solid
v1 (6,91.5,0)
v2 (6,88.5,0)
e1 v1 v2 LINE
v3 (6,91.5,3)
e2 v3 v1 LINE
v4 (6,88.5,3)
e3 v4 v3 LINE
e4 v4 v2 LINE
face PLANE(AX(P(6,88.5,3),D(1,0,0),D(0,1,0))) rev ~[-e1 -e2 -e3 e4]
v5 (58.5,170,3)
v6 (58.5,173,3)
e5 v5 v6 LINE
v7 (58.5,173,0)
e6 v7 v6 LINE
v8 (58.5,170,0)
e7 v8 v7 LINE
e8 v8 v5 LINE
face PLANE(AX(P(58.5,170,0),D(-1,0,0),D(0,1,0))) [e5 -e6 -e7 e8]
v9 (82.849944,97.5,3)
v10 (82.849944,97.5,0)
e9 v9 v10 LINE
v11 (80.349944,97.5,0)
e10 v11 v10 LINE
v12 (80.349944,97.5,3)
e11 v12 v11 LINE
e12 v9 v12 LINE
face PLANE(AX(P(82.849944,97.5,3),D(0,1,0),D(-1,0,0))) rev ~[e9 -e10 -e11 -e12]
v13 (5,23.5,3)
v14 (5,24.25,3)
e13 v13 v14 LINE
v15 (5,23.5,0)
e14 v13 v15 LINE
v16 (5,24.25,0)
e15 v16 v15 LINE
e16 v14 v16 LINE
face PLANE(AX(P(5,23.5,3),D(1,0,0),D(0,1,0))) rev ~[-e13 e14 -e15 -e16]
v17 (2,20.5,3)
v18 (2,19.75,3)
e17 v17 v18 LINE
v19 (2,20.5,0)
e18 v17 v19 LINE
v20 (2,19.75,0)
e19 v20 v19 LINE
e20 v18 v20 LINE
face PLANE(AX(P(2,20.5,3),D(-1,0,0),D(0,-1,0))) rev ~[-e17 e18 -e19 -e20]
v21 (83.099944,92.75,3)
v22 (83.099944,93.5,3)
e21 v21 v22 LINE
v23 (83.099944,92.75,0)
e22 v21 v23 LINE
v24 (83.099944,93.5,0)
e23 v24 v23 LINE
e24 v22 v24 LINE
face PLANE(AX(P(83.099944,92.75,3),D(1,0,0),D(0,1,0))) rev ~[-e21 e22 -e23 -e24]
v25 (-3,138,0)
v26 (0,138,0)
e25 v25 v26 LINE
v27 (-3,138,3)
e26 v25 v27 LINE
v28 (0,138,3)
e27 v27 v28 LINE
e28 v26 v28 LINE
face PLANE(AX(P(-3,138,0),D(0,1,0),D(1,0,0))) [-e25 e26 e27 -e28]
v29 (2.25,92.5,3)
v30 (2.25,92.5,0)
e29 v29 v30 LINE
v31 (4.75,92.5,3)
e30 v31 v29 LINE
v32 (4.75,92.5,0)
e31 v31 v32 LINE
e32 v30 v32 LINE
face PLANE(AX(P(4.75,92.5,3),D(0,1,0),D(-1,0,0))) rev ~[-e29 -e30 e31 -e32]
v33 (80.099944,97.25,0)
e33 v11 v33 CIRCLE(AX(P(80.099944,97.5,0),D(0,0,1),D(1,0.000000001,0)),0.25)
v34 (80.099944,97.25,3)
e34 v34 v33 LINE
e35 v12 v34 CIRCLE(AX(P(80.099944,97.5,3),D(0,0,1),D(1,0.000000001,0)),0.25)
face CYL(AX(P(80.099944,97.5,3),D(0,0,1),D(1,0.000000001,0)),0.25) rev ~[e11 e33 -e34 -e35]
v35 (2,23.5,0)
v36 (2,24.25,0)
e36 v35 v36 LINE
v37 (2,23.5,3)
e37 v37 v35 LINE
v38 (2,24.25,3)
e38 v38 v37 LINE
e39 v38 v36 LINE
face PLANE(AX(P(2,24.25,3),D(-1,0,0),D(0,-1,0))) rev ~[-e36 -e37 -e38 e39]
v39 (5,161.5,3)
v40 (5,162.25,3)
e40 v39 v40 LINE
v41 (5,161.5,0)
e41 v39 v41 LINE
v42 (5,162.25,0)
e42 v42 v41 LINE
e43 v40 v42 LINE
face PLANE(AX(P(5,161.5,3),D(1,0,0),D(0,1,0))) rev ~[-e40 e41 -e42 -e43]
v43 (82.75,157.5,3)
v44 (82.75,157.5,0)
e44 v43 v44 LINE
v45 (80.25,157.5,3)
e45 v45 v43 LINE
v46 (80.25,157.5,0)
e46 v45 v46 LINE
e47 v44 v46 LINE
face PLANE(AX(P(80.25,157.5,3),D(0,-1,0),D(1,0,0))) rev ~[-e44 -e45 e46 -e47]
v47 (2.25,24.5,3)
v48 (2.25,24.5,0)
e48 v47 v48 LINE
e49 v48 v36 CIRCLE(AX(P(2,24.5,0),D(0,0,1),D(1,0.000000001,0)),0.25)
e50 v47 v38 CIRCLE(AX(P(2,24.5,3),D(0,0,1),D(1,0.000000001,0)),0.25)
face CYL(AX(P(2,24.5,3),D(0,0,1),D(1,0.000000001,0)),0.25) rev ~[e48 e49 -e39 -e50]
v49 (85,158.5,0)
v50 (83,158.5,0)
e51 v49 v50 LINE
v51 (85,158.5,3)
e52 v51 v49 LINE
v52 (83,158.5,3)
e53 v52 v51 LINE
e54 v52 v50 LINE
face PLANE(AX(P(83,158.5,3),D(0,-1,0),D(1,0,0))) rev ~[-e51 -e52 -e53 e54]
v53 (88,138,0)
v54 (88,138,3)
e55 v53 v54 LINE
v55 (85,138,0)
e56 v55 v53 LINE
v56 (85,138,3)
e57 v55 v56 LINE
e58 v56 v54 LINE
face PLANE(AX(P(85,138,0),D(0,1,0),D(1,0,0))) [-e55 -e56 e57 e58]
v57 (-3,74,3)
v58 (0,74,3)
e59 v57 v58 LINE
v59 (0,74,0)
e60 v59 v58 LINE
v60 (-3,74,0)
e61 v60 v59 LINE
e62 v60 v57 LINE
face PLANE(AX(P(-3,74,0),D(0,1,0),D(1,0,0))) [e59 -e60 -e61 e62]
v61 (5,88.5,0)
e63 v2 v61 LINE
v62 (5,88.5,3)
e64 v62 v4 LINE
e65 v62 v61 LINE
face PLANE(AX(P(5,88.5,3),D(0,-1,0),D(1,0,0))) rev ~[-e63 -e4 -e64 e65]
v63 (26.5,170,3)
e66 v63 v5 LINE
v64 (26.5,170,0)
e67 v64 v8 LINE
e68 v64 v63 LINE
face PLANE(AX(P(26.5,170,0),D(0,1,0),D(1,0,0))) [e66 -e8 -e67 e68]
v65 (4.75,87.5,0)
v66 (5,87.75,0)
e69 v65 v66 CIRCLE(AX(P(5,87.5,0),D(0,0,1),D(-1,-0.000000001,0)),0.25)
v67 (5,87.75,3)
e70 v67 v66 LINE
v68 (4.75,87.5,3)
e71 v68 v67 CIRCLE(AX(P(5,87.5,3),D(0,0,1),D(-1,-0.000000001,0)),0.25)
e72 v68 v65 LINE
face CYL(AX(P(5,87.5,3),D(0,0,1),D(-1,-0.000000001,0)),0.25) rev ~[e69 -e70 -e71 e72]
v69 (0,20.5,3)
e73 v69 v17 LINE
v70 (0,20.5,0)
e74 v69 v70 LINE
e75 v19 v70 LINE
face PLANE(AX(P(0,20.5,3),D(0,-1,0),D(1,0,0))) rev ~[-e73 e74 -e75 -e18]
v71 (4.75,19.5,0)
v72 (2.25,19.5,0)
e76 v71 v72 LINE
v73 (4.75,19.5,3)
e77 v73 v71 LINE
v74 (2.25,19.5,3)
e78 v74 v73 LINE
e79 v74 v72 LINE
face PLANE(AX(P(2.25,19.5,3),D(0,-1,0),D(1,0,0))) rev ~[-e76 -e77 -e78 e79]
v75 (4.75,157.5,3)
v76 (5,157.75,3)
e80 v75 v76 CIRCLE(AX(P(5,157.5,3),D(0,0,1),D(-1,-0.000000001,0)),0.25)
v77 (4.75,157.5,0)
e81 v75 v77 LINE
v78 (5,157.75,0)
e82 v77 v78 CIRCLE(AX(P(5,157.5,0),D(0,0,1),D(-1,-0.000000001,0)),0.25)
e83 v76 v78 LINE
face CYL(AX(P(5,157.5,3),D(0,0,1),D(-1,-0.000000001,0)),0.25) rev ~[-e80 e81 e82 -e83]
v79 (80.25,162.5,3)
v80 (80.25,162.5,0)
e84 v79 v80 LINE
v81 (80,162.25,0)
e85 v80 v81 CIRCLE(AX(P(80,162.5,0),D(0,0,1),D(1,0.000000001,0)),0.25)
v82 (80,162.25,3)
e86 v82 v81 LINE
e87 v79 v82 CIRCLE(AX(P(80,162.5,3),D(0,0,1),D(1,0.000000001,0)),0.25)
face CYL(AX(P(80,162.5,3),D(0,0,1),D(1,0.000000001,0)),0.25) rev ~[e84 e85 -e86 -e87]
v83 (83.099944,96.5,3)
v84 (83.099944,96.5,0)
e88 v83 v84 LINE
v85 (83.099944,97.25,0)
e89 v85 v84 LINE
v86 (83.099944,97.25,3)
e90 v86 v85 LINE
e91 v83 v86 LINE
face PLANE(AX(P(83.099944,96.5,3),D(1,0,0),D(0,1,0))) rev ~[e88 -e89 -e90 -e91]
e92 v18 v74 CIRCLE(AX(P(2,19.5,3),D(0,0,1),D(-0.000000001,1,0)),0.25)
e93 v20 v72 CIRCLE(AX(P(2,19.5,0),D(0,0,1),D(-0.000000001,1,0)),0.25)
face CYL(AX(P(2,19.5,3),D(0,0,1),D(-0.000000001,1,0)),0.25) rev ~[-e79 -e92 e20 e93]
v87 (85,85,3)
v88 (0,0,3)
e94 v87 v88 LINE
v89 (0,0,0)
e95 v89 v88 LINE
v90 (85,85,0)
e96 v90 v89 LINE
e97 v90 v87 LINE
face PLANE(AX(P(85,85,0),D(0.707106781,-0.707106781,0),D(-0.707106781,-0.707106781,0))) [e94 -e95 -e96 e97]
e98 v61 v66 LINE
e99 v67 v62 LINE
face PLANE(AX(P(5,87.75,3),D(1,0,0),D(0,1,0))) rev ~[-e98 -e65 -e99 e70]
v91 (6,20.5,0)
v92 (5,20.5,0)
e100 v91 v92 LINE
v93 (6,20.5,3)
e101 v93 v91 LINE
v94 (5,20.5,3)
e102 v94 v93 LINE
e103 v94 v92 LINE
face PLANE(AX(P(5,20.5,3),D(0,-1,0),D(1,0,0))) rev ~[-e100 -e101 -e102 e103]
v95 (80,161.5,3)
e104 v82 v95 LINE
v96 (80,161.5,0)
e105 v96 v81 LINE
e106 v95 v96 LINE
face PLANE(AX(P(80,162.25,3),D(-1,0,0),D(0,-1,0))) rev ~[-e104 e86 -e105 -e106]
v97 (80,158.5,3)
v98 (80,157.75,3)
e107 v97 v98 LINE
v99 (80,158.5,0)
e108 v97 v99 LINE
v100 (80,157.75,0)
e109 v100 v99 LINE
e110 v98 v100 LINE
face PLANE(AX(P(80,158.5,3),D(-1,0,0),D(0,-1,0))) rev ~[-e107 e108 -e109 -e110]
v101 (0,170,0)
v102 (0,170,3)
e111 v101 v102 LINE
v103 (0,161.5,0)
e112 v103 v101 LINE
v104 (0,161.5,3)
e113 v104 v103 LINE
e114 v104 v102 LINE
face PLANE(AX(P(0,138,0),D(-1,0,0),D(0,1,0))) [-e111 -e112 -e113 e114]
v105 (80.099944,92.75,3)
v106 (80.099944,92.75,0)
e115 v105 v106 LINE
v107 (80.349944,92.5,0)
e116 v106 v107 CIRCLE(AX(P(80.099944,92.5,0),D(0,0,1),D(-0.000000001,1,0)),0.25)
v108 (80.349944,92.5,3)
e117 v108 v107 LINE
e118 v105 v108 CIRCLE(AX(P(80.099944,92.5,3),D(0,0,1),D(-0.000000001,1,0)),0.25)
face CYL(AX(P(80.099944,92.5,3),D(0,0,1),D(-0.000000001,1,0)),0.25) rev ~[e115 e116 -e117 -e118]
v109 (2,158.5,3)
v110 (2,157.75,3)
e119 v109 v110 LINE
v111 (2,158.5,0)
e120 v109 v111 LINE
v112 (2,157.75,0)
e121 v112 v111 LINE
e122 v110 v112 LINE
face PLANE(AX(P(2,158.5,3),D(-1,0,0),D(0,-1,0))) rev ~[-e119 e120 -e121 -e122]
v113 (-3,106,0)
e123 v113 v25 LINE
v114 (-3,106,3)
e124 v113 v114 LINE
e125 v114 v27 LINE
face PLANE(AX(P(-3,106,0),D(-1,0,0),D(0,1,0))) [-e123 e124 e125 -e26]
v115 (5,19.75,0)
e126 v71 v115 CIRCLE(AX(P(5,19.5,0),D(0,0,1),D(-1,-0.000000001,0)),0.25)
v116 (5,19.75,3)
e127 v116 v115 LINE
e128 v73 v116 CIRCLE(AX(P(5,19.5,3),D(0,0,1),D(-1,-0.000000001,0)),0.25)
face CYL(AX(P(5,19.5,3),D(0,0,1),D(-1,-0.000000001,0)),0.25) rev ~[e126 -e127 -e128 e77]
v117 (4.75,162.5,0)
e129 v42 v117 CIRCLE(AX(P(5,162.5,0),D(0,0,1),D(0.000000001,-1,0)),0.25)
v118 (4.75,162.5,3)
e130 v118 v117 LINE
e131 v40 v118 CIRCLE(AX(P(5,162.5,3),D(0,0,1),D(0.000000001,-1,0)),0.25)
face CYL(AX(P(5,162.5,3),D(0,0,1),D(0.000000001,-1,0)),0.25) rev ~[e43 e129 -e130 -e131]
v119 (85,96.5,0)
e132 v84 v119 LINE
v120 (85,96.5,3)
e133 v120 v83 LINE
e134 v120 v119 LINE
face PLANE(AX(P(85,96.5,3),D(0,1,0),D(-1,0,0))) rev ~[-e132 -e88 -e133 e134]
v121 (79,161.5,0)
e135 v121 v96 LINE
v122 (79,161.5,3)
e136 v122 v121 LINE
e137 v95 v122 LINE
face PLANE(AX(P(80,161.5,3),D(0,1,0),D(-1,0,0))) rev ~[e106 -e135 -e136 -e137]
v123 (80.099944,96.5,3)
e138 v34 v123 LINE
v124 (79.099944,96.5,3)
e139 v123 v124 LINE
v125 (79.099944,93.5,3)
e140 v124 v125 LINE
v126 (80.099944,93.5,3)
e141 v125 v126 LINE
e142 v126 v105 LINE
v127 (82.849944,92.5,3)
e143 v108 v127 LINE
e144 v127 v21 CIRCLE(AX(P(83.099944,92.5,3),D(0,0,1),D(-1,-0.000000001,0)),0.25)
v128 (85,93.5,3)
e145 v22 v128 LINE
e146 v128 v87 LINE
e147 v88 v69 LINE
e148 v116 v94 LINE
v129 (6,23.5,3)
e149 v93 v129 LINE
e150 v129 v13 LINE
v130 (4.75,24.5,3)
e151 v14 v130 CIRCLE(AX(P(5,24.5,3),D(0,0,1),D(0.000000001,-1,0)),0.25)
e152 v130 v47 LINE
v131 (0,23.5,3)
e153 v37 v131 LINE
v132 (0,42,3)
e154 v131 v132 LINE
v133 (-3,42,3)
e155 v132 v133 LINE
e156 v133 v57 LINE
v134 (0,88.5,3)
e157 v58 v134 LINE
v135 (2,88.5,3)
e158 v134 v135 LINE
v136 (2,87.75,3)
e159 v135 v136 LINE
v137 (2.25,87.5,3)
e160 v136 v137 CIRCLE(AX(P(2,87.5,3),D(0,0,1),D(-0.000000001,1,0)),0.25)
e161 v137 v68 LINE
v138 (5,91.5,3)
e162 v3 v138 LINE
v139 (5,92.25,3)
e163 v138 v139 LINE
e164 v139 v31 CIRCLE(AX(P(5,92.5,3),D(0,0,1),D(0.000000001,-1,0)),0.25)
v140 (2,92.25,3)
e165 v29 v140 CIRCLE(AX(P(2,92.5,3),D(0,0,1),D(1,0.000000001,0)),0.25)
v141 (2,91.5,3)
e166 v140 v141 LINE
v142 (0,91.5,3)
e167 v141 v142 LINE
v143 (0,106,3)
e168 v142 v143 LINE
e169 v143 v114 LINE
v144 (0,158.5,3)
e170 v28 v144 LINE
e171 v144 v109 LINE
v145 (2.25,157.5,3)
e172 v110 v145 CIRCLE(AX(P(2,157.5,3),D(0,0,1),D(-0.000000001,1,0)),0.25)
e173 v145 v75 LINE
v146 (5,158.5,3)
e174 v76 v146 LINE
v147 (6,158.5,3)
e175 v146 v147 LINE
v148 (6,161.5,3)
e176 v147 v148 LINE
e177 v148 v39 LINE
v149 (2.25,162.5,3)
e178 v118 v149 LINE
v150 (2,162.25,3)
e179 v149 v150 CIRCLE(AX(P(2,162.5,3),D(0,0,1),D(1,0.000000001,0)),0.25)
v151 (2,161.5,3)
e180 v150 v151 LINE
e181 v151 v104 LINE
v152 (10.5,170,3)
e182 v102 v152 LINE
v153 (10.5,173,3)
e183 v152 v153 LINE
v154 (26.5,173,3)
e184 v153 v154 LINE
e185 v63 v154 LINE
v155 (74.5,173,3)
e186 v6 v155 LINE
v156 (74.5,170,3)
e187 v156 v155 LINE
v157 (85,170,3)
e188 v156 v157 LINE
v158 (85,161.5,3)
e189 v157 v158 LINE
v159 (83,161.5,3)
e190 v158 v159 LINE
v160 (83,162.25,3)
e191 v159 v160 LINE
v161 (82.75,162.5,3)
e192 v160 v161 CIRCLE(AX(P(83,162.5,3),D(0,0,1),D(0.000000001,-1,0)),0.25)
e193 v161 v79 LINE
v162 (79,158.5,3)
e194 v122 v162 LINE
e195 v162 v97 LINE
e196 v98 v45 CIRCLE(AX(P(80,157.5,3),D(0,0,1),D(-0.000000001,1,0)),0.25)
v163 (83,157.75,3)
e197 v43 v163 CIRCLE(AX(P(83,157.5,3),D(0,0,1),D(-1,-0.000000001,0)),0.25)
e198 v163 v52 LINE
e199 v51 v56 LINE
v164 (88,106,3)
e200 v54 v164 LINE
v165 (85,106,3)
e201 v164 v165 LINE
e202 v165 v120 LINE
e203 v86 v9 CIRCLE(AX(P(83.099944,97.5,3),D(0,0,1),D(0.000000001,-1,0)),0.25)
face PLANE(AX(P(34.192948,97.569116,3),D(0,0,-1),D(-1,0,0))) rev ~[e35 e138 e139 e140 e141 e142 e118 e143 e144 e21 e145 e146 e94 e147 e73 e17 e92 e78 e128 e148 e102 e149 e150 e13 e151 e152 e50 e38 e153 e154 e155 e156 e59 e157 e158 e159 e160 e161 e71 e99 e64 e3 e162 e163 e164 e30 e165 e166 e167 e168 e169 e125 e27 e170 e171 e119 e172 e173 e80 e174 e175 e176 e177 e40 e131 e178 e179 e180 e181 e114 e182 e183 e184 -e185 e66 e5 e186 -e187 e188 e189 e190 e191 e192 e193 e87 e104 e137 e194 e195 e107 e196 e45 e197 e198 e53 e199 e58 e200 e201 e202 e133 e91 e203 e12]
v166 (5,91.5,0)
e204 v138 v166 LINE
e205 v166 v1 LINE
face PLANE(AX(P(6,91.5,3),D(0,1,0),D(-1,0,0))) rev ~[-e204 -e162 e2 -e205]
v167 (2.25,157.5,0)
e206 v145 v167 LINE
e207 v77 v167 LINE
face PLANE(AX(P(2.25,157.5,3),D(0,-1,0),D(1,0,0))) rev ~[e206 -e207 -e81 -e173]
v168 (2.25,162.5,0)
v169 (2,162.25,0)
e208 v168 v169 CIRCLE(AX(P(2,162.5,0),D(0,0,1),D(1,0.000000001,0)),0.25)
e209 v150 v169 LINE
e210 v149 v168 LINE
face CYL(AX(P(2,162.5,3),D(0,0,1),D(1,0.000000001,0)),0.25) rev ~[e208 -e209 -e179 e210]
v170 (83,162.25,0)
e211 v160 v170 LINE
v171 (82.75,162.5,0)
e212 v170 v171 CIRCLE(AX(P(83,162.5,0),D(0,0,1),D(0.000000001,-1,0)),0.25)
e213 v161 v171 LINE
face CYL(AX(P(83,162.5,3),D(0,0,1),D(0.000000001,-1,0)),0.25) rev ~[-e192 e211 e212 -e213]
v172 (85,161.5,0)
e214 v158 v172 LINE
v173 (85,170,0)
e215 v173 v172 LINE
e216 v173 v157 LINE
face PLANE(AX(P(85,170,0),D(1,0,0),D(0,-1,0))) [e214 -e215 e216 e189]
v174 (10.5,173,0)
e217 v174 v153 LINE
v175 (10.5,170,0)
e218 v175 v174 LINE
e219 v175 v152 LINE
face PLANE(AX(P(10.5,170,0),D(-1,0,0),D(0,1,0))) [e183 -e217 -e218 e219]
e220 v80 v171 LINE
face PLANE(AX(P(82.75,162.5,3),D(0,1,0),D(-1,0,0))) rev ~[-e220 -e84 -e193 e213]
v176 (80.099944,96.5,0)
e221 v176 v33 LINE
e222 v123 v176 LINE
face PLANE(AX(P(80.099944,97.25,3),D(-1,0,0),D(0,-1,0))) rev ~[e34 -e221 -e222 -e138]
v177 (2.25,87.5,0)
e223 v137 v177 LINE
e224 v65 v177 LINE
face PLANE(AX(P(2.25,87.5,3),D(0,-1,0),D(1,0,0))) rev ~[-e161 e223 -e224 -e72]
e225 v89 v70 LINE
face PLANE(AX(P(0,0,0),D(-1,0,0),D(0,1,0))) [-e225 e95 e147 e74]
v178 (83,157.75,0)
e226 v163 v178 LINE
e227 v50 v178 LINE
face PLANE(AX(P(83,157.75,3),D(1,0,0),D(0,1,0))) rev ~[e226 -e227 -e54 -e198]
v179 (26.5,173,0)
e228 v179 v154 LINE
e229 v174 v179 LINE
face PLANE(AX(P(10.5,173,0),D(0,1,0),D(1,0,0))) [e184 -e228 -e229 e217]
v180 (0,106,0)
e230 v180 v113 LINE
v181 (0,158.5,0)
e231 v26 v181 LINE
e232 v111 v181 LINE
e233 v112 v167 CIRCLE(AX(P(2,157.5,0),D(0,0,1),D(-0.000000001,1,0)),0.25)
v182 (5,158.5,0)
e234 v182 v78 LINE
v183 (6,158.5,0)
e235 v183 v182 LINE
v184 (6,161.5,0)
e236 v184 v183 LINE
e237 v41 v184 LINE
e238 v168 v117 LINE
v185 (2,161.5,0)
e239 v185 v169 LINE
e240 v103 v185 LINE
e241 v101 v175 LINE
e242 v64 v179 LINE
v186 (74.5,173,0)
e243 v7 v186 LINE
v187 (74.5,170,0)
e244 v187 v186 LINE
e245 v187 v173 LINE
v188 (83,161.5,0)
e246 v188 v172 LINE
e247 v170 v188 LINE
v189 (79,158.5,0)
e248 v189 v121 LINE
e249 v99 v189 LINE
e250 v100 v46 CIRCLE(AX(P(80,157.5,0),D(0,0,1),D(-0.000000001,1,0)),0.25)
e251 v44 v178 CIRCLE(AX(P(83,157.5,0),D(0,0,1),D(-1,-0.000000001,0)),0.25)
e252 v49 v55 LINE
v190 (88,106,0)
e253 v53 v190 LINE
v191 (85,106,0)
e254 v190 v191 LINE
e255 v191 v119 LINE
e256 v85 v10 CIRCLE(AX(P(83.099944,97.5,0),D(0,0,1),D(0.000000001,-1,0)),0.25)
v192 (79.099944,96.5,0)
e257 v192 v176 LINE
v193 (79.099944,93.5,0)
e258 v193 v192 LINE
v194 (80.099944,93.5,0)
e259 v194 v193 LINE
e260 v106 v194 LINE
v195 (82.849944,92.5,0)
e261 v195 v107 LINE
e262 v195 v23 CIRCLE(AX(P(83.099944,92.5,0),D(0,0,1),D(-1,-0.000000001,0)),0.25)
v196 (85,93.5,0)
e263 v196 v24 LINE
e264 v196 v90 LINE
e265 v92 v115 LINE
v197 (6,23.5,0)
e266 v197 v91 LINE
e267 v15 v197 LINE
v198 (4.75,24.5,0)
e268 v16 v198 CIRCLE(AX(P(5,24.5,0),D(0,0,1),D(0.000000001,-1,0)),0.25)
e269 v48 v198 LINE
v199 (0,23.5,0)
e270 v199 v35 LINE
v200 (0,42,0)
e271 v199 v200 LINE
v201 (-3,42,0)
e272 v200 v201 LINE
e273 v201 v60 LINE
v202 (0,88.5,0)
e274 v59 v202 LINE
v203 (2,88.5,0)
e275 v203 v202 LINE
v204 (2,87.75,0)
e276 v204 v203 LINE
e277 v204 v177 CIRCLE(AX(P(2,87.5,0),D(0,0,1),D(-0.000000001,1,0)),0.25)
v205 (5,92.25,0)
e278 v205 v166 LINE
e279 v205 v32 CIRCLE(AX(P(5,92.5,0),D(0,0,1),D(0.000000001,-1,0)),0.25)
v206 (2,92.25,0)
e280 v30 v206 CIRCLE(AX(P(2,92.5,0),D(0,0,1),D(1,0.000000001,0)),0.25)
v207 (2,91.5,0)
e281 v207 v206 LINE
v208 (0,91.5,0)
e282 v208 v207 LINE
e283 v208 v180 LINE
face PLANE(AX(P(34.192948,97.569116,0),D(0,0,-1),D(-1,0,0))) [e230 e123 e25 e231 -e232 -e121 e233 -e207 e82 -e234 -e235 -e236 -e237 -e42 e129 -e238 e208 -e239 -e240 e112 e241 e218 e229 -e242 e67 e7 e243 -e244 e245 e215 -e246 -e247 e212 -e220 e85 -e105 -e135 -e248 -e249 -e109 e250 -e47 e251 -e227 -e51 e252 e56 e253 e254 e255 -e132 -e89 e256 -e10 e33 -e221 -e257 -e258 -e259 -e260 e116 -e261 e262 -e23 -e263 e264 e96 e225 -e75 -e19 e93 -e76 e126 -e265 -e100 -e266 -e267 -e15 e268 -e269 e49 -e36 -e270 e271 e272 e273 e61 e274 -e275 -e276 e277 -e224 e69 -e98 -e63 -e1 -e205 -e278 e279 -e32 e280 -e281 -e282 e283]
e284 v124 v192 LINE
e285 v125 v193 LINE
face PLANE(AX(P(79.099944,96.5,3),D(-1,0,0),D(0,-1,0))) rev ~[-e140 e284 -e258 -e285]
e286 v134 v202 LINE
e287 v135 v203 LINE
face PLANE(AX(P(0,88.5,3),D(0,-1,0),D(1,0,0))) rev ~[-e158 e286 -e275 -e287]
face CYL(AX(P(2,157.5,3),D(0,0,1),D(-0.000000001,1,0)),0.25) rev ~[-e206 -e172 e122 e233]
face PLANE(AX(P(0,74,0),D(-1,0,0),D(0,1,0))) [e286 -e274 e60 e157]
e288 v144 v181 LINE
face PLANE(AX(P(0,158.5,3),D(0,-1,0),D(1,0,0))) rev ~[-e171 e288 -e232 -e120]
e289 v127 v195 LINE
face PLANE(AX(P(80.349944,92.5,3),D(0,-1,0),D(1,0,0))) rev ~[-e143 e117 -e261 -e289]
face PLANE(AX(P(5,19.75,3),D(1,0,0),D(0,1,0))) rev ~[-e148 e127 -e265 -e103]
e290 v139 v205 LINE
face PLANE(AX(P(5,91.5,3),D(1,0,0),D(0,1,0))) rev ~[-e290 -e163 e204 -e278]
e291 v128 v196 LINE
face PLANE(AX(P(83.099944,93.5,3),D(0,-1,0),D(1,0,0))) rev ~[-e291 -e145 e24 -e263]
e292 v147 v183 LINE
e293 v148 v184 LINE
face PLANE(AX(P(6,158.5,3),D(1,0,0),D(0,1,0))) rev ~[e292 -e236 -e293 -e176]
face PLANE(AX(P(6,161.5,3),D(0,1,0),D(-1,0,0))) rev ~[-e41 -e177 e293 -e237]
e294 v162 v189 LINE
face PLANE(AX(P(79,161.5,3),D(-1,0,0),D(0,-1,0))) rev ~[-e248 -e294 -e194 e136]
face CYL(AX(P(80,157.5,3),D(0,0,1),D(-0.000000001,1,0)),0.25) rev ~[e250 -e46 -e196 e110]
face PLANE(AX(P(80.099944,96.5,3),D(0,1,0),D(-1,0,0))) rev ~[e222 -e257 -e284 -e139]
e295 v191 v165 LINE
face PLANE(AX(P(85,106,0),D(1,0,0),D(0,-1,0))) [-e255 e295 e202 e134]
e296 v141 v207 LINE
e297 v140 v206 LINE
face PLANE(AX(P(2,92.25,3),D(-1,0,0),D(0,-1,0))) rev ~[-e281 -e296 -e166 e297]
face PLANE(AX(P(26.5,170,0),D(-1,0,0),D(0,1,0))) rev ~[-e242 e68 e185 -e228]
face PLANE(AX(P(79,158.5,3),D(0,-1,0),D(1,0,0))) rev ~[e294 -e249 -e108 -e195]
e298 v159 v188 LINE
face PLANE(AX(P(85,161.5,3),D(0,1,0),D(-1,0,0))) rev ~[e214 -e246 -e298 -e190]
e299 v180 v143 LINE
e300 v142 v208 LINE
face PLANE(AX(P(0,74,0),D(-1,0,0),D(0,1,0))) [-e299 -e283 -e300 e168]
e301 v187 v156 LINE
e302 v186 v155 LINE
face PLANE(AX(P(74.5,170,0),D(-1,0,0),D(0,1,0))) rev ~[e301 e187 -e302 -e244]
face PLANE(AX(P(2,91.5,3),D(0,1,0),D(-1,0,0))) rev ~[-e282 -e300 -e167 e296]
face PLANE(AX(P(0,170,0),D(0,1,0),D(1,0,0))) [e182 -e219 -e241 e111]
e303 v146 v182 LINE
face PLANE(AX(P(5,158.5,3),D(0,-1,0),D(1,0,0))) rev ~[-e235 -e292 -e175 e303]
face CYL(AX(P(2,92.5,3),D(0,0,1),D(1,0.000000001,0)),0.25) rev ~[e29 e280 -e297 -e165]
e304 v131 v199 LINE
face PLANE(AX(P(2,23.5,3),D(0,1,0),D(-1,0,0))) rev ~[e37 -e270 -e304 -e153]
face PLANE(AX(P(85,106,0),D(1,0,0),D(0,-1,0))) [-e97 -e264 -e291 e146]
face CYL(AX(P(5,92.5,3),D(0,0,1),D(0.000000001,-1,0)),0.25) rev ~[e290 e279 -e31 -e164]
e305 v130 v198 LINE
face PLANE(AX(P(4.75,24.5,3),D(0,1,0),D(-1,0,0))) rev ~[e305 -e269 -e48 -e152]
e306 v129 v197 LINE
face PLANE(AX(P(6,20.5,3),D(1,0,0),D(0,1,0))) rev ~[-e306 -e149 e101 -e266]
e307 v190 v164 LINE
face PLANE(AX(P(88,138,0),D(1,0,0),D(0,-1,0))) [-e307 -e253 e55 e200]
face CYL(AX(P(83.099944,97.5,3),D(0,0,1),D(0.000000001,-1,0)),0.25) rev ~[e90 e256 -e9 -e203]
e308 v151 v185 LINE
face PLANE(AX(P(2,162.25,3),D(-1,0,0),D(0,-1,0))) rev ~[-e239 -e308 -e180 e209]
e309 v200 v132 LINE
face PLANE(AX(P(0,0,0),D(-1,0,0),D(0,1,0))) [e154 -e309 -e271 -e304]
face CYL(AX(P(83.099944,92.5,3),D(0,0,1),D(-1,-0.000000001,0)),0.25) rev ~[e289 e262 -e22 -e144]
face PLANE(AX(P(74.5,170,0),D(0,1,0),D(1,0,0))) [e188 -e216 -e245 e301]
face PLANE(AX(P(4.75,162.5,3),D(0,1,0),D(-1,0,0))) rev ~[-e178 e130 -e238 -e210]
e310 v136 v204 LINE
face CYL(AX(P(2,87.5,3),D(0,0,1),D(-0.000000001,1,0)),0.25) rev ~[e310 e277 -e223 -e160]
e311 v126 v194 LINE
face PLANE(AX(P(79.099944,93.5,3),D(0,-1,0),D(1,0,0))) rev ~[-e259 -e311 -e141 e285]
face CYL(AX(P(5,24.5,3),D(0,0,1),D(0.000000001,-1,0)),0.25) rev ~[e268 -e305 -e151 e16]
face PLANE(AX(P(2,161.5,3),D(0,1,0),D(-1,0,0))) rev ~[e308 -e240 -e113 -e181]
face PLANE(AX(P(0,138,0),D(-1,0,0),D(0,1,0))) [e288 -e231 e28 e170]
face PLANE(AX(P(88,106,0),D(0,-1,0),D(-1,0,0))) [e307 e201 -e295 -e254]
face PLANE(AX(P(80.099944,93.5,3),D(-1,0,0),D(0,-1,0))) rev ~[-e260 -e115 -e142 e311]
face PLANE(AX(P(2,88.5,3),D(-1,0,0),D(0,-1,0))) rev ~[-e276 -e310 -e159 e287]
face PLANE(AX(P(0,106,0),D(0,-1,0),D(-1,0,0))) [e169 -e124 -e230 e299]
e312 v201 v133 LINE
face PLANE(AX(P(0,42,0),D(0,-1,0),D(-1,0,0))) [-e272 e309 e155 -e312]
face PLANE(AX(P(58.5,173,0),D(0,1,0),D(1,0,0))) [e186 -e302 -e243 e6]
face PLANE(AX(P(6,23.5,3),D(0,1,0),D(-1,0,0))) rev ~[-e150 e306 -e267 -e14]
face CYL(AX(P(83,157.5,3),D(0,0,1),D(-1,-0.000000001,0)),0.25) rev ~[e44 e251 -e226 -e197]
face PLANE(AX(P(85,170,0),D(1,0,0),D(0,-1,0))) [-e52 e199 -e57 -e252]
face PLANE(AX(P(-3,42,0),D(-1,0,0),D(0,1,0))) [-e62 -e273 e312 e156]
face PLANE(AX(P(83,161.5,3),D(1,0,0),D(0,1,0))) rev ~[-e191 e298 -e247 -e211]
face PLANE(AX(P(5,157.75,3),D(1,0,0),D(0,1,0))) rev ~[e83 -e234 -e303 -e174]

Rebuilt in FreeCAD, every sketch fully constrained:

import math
import FreeCAD as App
import Part
import Sketcher
from FreeCAD import Vector
Q = App.Units.Quantity


def add_polygon(sketch, points):
    """Adds a closed chain of lines whose ends are joined by coincident constraints."""
    first, n = sketch.GeometryCount, len(points)
    for a, b in zip(points, points[1:] + points[:1]):
        sketch.addGeometry(Part.LineSegment(App.Vector(*a, 0), App.Vector(*b, 0)), False)
    for i in range(n):
        sketch.addConstraint(Sketcher.Constraint("Coincident", first + i, 2, first + (i + 1) % n, 1))

doc = App.newDocument("Part")
body = doc.addObject("PartDesign::Body", "Body")

sketch1 = doc.addObject("Sketcher::SketchObject", "Sketch")
body.addObject(sketch1)
sketch1.AttachmentSupport = (doc.XY_Plane, [""])
sketch1.MapMode = "FlatFace"
add_polygon(sketch1, [(85, 85), (85, 106), (88, 106), (88, 138), (85, 138), (85, 170), (74.5, 170), (74.5, 173), (58.5, 173), (58.5, 170), (26.5, 170), (26.5, 173), (10.5, 173), (10.5, 170), (0, 170), (0, 138), (-3, 138), (-3, 106), (0, 106), (0, 74), (-3, 74), (-3, 42), (0, 42), (0, 0)])
sketch1.addConstraint([
    Sketcher.Constraint("Vertical", 0),
    Sketcher.Constraint("Horizontal", 1),
    Sketcher.Constraint("Vertical", 2),
    Sketcher.Constraint("Horizontal", 3),
    Sketcher.Constraint("Vertical", 4),
    Sketcher.Constraint("Horizontal", 5),
    Sketcher.Constraint("Vertical", 6),
    Sketcher.Constraint("Horizontal", 7),
    Sketcher.Constraint("Vertical", 8),
    Sketcher.Constraint("Horizontal", 9),
    Sketcher.Constraint("Vertical", 10),
    Sketcher.Constraint("Horizontal", 11),
    Sketcher.Constraint("Vertical", 12),
    Sketcher.Constraint("Horizontal", 13),
    Sketcher.Constraint("Vertical", 14),
    Sketcher.Constraint("Horizontal", 15),
    Sketcher.Constraint("Vertical", 16),
    Sketcher.Constraint("Horizontal", 17),
    Sketcher.Constraint("Vertical", 18),
    Sketcher.Constraint("Horizontal", 19),
    Sketcher.Constraint("Vertical", 20),
    Sketcher.Constraint("Horizontal", 21),
    Sketcher.Constraint("Vertical", 22),
    Sketcher.Constraint("Coincident", 22, 2, -1, 1),
    Sketcher.Constraint("PointOnObject", 13, 2, -2),
    Sketcher.Constraint("PointOnObject", 17, 2, -2),
    Sketcher.Constraint("Horizontal", 5, 2, 8, 2),
    Sketcher.Constraint("Horizontal", 7, 2, 10, 2),
    Sketcher.Constraint("Horizontal", 9, 2, 12, 2),
    Sketcher.Constraint("Horizontal", 3, 2, 14, 2),
    Sketcher.Constraint("Horizontal", 1, 2, 16, 2),
    Sketcher.Constraint("Vertical", 0, 2, 3, 2),
    Sketcher.Constraint("Vertical", 16, 2, 19, 2),
    Sketcher.Constraint("Equal", 7, 11),
    Sketcher.Constraint("Equal", 5, 13),
    Sketcher.Constraint("Equal", 3, 15),
    Sketcher.Constraint("Equal", 9, 2),
    Sketcher.Constraint("Equal", 2, 4),
    Sketcher.Constraint("Equal", 21, 6),
    Sketcher.Constraint("Equal", 16, 18),
    Sketcher.Constraint("Equal", 18, 20),
    Sketcher.Constraint("DistanceX", 1, 1, 1, 2, 3.0),
    Sketcher.Constraint("DistanceX", 7, 2, 7, 1, 16.0),
    Sketcher.Constraint("DistanceX", 9, 2, 9, 1, 32.0),
    Sketcher.Constraint("DistanceY", 0, 1, 0, 2, 21.0),
    Sketcher.Constraint("DistanceY", 22, 2, 22, 1, 42.0),
    Sketcher.Constraint("Angle", 23, Q("45 deg")),
])
pad1 = doc.addObject("PartDesign::Pad", "Pad")
body.addObject(pad1)
pad1.Profile = sketch1
pad1.Length = 3

sketch2 = doc.addObject("Sketcher::SketchObject", "Sketch001")
body.addObject(sketch2)
sketch2.AttachmentSupport = (doc.XY_Plane, [""])
sketch2.MapMode = "FlatFace"
sketch2.AttachmentOffset = App.Placement(Vector(0, 0, 3), App.Rotation())
sketch2.addGeometry([
    Part.LineSegment(Vector(2, 91.5, 0), Vector(0, 91.5, 0)),
    Part.LineSegment(Vector(0, 91.5, 0), Vector(0, 88.5, 0)),
    Part.LineSegment(Vector(0, 88.5, 0), Vector(2, 88.5, 0)),
    Part.LineSegment(Vector(2, 88.5, 0), Vector(2, 87.75, 0)),
    Part.ArcOfCircle(Part.Circle(Vector(2, 87.5, 0), Vector(0, 0, 1), 0.25), math.radians(90), math.radians(360)),
    Part.LineSegment(Vector(2.25, 87.5, 0), Vector(4.75, 87.5, 0)),
    Part.ArcOfCircle(Part.Circle(Vector(5, 87.5, 0), Vector(0, 0, 1), 0.25), math.radians(180), math.radians(450)),
    Part.LineSegment(Vector(5, 87.75, 0), Vector(5, 88.5, 0)),
    Part.LineSegment(Vector(5, 88.5, 0), Vector(6, 88.5, 0)),
    Part.LineSegment(Vector(6, 88.5, 0), Vector(6, 91.5, 0)),
    Part.LineSegment(Vector(6, 91.5, 0), Vector(5, 91.5, 0)),
    Part.LineSegment(Vector(5, 91.5, 0), Vector(5, 92.25, 0)),
    Part.ArcOfCircle(Part.Circle(Vector(5, 92.5, 0), Vector(0, 0, 1), 0.25), math.radians(-90), math.radians(180)),
    Part.LineSegment(Vector(4.75, 92.5, 0), Vector(2.25, 92.5, 0)),
    Part.ArcOfCircle(Part.Circle(Vector(2, 92.5, 0), Vector(0, 0, 1), 0.25), math.radians(0), math.radians(270)),
    Part.LineSegment(Vector(2, 92.25, 0), Vector(2, 91.5, 0)),
    Part.LineSegment(Vector(2, 161.5, 0), Vector(0, 161.5, 0)),
    Part.LineSegment(Vector(0, 161.5, 0), Vector(0, 158.5, 0)),
    Part.LineSegment(Vector(0, 158.5, 0), Vector(2, 158.5, 0)),
    Part.LineSegment(Vector(2, 158.5, 0), Vector(2, 157.75, 0)),
    Part.ArcOfCircle(Part.Circle(Vector(2, 157.5, 0), Vector(0, 0, 1), 0.25), math.radians(90), math.radians(360)),
    Part.LineSegment(Vector(2.25, 157.5, 0), Vector(4.75, 157.5, 0)),
    Part.ArcOfCircle(Part.Circle(Vector(5, 157.5, 0), Vector(0, 0, 1), 0.25), math.radians(180), math.radians(450)),
    Part.LineSegment(Vector(5, 157.75, 0), Vector(5, 158.5, 0)),
    Part.LineSegment(Vector(5, 158.5, 0), Vector(6, 158.5, 0)),
    Part.LineSegment(Vector(6, 158.5, 0), Vector(6, 161.5, 0)),
    Part.LineSegment(Vector(6, 161.5, 0), Vector(5, 161.5, 0)),
    Part.LineSegment(Vector(5, 161.5, 0), Vector(5, 162.25, 0)),
    Part.ArcOfCircle(Part.Circle(Vector(5, 162.5, 0), Vector(0, 0, 1), 0.25), math.radians(-90), math.radians(180)),
    Part.LineSegment(Vector(4.75, 162.5, 0), Vector(2.25, 162.5, 0)),
    Part.ArcOfCircle(Part.Circle(Vector(2, 162.5, 0), Vector(0, 0, 1), 0.25), math.radians(0), math.radians(270)),
    Part.LineSegment(Vector(2, 162.25, 0), Vector(2, 161.5, 0)),
    Part.LineSegment(Vector(83, 158.5, 0), Vector(85, 158.5, 0)),
    Part.LineSegment(Vector(85, 158.5, 0), Vector(85, 161.5, 0)),
    Part.LineSegment(Vector(85, 161.5, 0), Vector(83, 161.5, 0)),
    Part.LineSegment(Vector(83, 161.5, 0), Vector(83, 162.25, 0)),
    Part.ArcOfCircle(Part.Circle(Vector(83, 162.5, 0), Vector(0, 0, 1), 0.25), math.radians(-90), math.radians(180)),
    Part.LineSegment(Vector(82.75, 162.5, 0), Vector(80.25, 162.5, 0)),
    Part.ArcOfCircle(Part.Circle(Vector(80, 162.5, 0), Vector(0, 0, 1), 0.25), math.radians(0), math.radians(270)),
    Part.LineSegment(Vector(80, 162.25, 0), Vector(80, 161.5, 0)),
    Part.LineSegment(Vector(80, 161.5, 0), Vector(79, 161.5, 0)),
    Part.LineSegment(Vector(79, 161.5, 0), Vector(79, 158.5, 0)),
    Part.LineSegment(Vector(79, 158.5, 0), Vector(80, 158.5, 0)),
    Part.LineSegment(Vector(80, 158.5, 0), Vector(80, 157.75, 0)),
    Part.ArcOfCircle(Part.Circle(Vector(80, 157.5, 0), Vector(0, 0, 1), 0.25), math.radians(90), math.radians(360)),
    Part.LineSegment(Vector(80.25, 157.5, 0), Vector(82.75, 157.5, 0)),
    Part.ArcOfCircle(Part.Circle(Vector(83, 157.5, 0), Vector(0, 0, 1), 0.25), math.radians(180), math.radians(450)),
    Part.LineSegment(Vector(83, 157.75, 0), Vector(83, 158.5, 0)),
    Part.LineSegment(Vector(2, 23.5, 0), Vector(0, 23.5, 0)),
    Part.LineSegment(Vector(0, 23.5, 0), Vector(0, 20.5, 0)),
    Part.LineSegment(Vector(0, 20.5, 0), Vector(2, 20.5, 0)),
    Part.LineSegment(Vector(2, 20.5, 0), Vector(2, 19.75, 0)),
    Part.ArcOfCircle(Part.Circle(Vector(2, 19.5, 0), Vector(0, 0, 1), 0.25), math.radians(90), math.radians(360)),
    Part.LineSegment(Vector(2.25, 19.5, 0), Vector(4.75, 19.5, 0)),
    Part.ArcOfCircle(Part.Circle(Vector(5, 19.5, 0), Vector(0, 0, 1), 0.25), math.radians(180), math.radians(450)),
    Part.LineSegment(Vector(5, 19.75, 0), Vector(5, 20.5, 0)),
    Part.LineSegment(Vector(5, 20.5, 0), Vector(6, 20.5, 0)),
    Part.LineSegment(Vector(6, 20.5, 0), Vector(6, 23.5, 0)),
    Part.LineSegment(Vector(6, 23.5, 0), Vector(5, 23.5, 0)),
    Part.LineSegment(Vector(5, 23.5, 0), Vector(5, 24.25, 0)),
    Part.ArcOfCircle(Part.Circle(Vector(5, 24.5, 0), Vector(0, 0, 1), 0.25), math.radians(-90), math.radians(180)),
    Part.LineSegment(Vector(4.75, 24.5, 0), Vector(2.25, 24.5, 0)),
    Part.ArcOfCircle(Part.Circle(Vector(2, 24.5, 0), Vector(0, 0, 1), 0.25), math.radians(0), math.radians(270)),
    Part.LineSegment(Vector(2, 24.25, 0), Vector(2, 23.5, 0)),
    Part.LineSegment(Vector(83.099944, 93.5, 0), Vector(85, 93.5, 0)),
    Part.LineSegment(Vector(85, 93.5, 0), Vector(85, 96.5, 0)),
    Part.LineSegment(Vector(85, 96.5, 0), Vector(83.099944, 96.5, 0)),
    Part.LineSegment(Vector(83.099944, 96.5, 0), Vector(83.099944, 97.25, 0)),
    Part.ArcOfCircle(Part.Circle(Vector(83.099944, 97.5, 0), Vector(0, 0, 1), 0.25), math.radians(-90), math.radians(180)),
    Part.LineSegment(Vector(82.849944, 97.5, 0), Vector(80.349944, 97.5, 0)),
    Part.ArcOfCircle(Part.Circle(Vector(80.099944, 97.5, 0), Vector(0, 0, 1), 0.25), math.radians(0), math.radians(270)),
    Part.LineSegment(Vector(80.099944, 97.25, 0), Vector(80.099944, 96.5, 0)),
    Part.LineSegment(Vector(80.099944, 96.5, 0), Vector(79.099944, 96.5, 0)),
    Part.LineSegment(Vector(79.099944, 96.5, 0), Vector(79.099944, 93.5, 0)),
    Part.LineSegment(Vector(79.099944, 93.5, 0), Vector(80.099944, 93.5, 0)),
    Part.LineSegment(Vector(80.099944, 93.5, 0), Vector(80.099944, 92.75, 0)),
    Part.ArcOfCircle(Part.Circle(Vector(80.099944, 92.5, 0), Vector(0, 0, 1), 0.25), math.radians(90), math.radians(360)),
    Part.LineSegment(Vector(80.349944, 92.5, 0), Vector(82.849944, 92.5, 0)),
    Part.ArcOfCircle(Part.Circle(Vector(83.099944, 92.5, 0), Vector(0, 0, 1), 0.25), math.radians(180), math.radians(450)),
    Part.LineSegment(Vector(83.099944, 92.75, 0), Vector(83.099944, 93.5, 0)),
], False)
sketch2.addConstraint([
    Sketcher.Constraint("Coincident", 0, 2, 1, 1),
    Sketcher.Constraint("Coincident", 1, 2, 2, 1),
    Sketcher.Constraint("Coincident", 2, 2, 3, 1),
    Sketcher.Constraint("Coincident", 3, 2, 4, 1),
    Sketcher.Constraint("Coincident", 4, 2, 5, 1),
    Sketcher.Constraint("Coincident", 5, 2, 6, 1),
    Sketcher.Constraint("Coincident", 6, 2, 7, 1),
    Sketcher.Constraint("Coincident", 7, 2, 8, 1),
    Sketcher.Constraint("Coincident", 8, 2, 9, 1),
    Sketcher.Constraint("Coincident", 9, 2, 10, 1),
    Sketcher.Constraint("Coincident", 10, 2, 11, 1),
    Sketcher.Constraint("Coincident", 11, 2, 12, 1),
    Sketcher.Constraint("Coincident", 12, 2, 13, 1),
    Sketcher.Constraint("Coincident", 13, 2, 14, 1),
    Sketcher.Constraint("Coincident", 14, 2, 15, 1),
    Sketcher.Constraint("Coincident", 15, 2, 0, 1),
    Sketcher.Constraint("Coincident", 16, 2, 17, 1),
    Sketcher.Constraint("Coincident", 17, 2, 18, 1),
    Sketcher.Constraint("Coincident", 18, 2, 19, 1),
    Sketcher.Constraint("Coincident", 19, 2, 20, 1),
    Sketcher.Constraint("Coincident", 20, 2, 21, 1),
    Sketcher.Constraint("Coincident", 21, 2, 22, 1),
    Sketcher.Constraint("Coincident", 22, 2, 23, 1),
    Sketcher.Constraint("Coincident", 23, 2, 24, 1),
    Sketcher.Constraint("Coincident", 24, 2, 25, 1),
    Sketcher.Constraint("Coincident", 25, 2, 26, 1),
    Sketcher.Constraint("Coincident", 26, 2, 27, 1),
    Sketcher.Constraint("Coincident", 27, 2, 28, 1),
    Sketcher.Constraint("Coincident", 28, 2, 29, 1),
    Sketcher.Constraint("Coincident", 29, 2, 30, 1),
    Sketcher.Constraint("Coincident", 30, 2, 31, 1),
    Sketcher.Constraint("Coincident", 31, 2, 16, 1),
    Sketcher.Constraint("Coincident", 32, 2, 33, 1),
    Sketcher.Constraint("Coincident", 33, 2, 34, 1),
    Sketcher.Constraint("Coincident", 34, 2, 35, 1),
    Sketcher.Constraint("Coincident", 35, 2, 36, 1),
    Sketcher.Constraint("Coincident", 36, 2, 37, 1),
    Sketcher.Constraint("Coincident", 37, 2, 38, 1),
    Sketcher.Constraint("Coincident", 38, 2, 39, 1),
    Sketcher.Constraint("Coincident", 39, 2, 40, 1),
    Sketcher.Constraint("Coincident", 40, 2, 41, 1),
    Sketcher.Constraint("Coincident", 41, 2, 42, 1),
    Sketcher.Constraint("Coincident", 42, 2, 43, 1),
    Sketcher.Constraint("Coincident", 43, 2, 44, 1),
    Sketcher.Constraint("Coincident", 44, 2, 45, 1),
    Sketcher.Constraint("Coincident", 45, 2, 46, 1),
    Sketcher.Constraint("Coincident", 46, 2, 47, 1),
    Sketcher.Constraint("Coincident", 47, 2, 32, 1),
    Sketcher.Constraint("Coincident", 48, 2, 49, 1),
    Sketcher.Constraint("Coincident", 49, 2, 50, 1),
    Sketcher.Constraint("Coincident", 50, 2, 51, 1),
    Sketcher.Constraint("Coincident", 51, 2, 52, 1),
    Sketcher.Constraint("Coincident", 52, 2, 53, 1),
    Sketcher.Constraint("Coincident", 53, 2, 54, 1),
    Sketcher.Constraint("Coincident", 54, 2, 55, 1),
    Sketcher.Constraint("Coincident", 55, 2, 56, 1),
    Sketcher.Constraint("Coincident", 56, 2, 57, 1),
    Sketcher.Constraint("Coincident", 57, 2, 58, 1),
    Sketcher.Constraint("Coincident", 58, 2, 59, 1),
    Sketcher.Constraint("Coincident", 59, 2, 60, 1),
    Sketcher.Constraint("Coincident", 60, 2, 61, 1),
    Sketcher.Constraint("Coincident", 61, 2, 62, 1),
    Sketcher.Constraint("Coincident", 62, 2, 63, 1),
    Sketcher.Constraint("Coincident", 63, 2, 48, 1),
    Sketcher.Constraint("Coincident", 64, 2, 65, 1),
    Sketcher.Constraint("Coincident", 65, 2, 66, 1),
    Sketcher.Constraint("Coincident", 66, 2, 67, 1),
    Sketcher.Constraint("Coincident", 67, 2, 68, 1),
    Sketcher.Constraint("Coincident", 68, 2, 69, 1),
    Sketcher.Constraint("Coincident", 69, 2, 70, 1),
    Sketcher.Constraint("Coincident", 70, 2, 71, 1),
    Sketcher.Constraint("Coincident", 71, 2, 72, 1),
    Sketcher.Constraint("Coincident", 72, 2, 73, 1),
    Sketcher.Constraint("Coincident", 73, 2, 74, 1),
    Sketcher.Constraint("Coincident", 74, 2, 75, 1),
    Sketcher.Constraint("Coincident", 75, 2, 76, 1),
    Sketcher.Constraint("Coincident", 76, 2, 77, 1),
    Sketcher.Constraint("Coincident", 77, 2, 78, 1),
    Sketcher.Constraint("Coincident", 78, 2, 79, 1),
    Sketcher.Constraint("Coincident", 79, 2, 64, 1),
    Sketcher.Constraint("Horizontal", 0),
    Sketcher.Constraint("Vertical", 1),
    Sketcher.Constraint("Horizontal", 2),
    Sketcher.Constraint("Vertical", 3),
    Sketcher.Constraint("Horizontal", 5),
    Sketcher.Constraint("Vertical", 7),
    Sketcher.Constraint("Horizontal", 8),
    Sketcher.Constraint("Vertical", 9),
    Sketcher.Constraint("Horizontal", 10),
    Sketcher.Constraint("Vertical", 11),
    Sketcher.Constraint("Horizontal", 13),
    Sketcher.Constraint("Vertical", 15),
    Sketcher.Constraint("Horizontal", 16),
    Sketcher.Constraint("Vertical", 17),
    Sketcher.Constraint("Horizontal", 18),
    Sketcher.Constraint("Vertical", 19),
    Sketcher.Constraint("Horizontal", 21),
    Sketcher.Constraint("Vertical", 23),
    Sketcher.Constraint("Horizontal", 24),
    Sketcher.Constraint("Vertical", 25),
    Sketcher.Constraint("Horizontal", 26),
    Sketcher.Constraint("Vertical", 27),
    Sketcher.Constraint("Horizontal", 29),
    Sketcher.Constraint("Vertical", 31),
    Sketcher.Constraint("Horizontal", 32),
    Sketcher.Constraint("Vertical", 33),
    Sketcher.Constraint("Horizontal", 34),
    Sketcher.Constraint("Vertical", 35),
    Sketcher.Constraint("Horizontal", 37),
    Sketcher.Constraint("Vertical", 39),
    Sketcher.Constraint("Horizontal", 40),
    Sketcher.Constraint("Vertical", 41),
    Sketcher.Constraint("Horizontal", 42),
    Sketcher.Constraint("Vertical", 43),
    Sketcher.Constraint("Horizontal", 45),
    Sketcher.Constraint("Vertical", 47),
    Sketcher.Constraint("Horizontal", 48),
    Sketcher.Constraint("Vertical", 49),
    Sketcher.Constraint("Horizontal", 50),
    Sketcher.Constraint("Vertical", 51),
    Sketcher.Constraint("Horizontal", 53),
    Sketcher.Constraint("Vertical", 55),
    Sketcher.Constraint("Horizontal", 56),
    Sketcher.Constraint("Vertical", 57),
    Sketcher.Constraint("Horizontal", 58),
    Sketcher.Constraint("Vertical", 59),
    Sketcher.Constraint("Horizontal", 61),
    Sketcher.Constraint("Vertical", 63),
    Sketcher.Constraint("Horizontal", 64),
    Sketcher.Constraint("Vertical", 65),
    Sketcher.Constraint("Horizontal", 66),
    Sketcher.Constraint("Vertical", 67),
    Sketcher.Constraint("Horizontal", 69),
    Sketcher.Constraint("Vertical", 71),
    Sketcher.Constraint("Horizontal", 72),
    Sketcher.Constraint("Vertical", 73),
    Sketcher.Constraint("Horizontal", 74),
    Sketcher.Constraint("Vertical", 75),
    Sketcher.Constraint("Horizontal", 77),
    Sketcher.Constraint("Vertical", 79),
    Sketcher.Constraint("Equal", 4, 6),
    Sketcher.Constraint("Equal", 6, 12),
    Sketcher.Constraint("Equal", 12, 14),
    Sketcher.Constraint("Equal", 14, 20),
    Sketcher.Constraint("Equal", 20, 22),
    Sketcher.Constraint("Equal", 22, 28),
    Sketcher.Constraint("Equal", 28, 30),
    Sketcher.Constraint("Equal", 30, 36),
    Sketcher.Constraint("Equal", 36, 38),
    Sketcher.Constraint("Equal", 38, 44),
    Sketcher.Constraint("Equal", 44, 46),
    Sketcher.Constraint("Equal", 46, 52),
    Sketcher.Constraint("Equal", 52, 54),
    Sketcher.Constraint("Equal", 54, 60),
    Sketcher.Constraint("Equal", 60, 62),
    Sketcher.Constraint("Equal", 62, 68),
    Sketcher.Constraint("Equal", 68, 70),
    Sketcher.Constraint("Equal", 70, 76),
    Sketcher.Constraint("Equal", 76, 78),
    Sketcher.Constraint("PointOnObject", 0, 2, -2),
    Sketcher.Constraint("PointOnObject", 16, 2, -2),
    Sketcher.Constraint("PointOnObject", 48, 2, -2),
    Sketcher.Constraint("Horizontal", 4, 3, 6, 3),
    Sketcher.Constraint("Horizontal", 12, 3, 14, 3),
    Sketcher.Constraint("Horizontal", 20, 3, 22, 3),
    Sketcher.Constraint("Horizontal", 28, 3, 30, 3),
    Sketcher.Constraint("Horizontal", 30, 3, 36, 3),
    Sketcher.Constraint("Horizontal", 36, 3, 38, 3),
    Sketcher.Constraint("Horizontal", 22, 3, 44, 3),
    Sketcher.Constraint("Horizontal", 44, 3, 46, 3),
    Sketcher.Constraint("Horizontal", 52, 3, 54, 3),
    Sketcher.Constraint("Horizontal", 60, 3, 62, 3),
    Sketcher.Constraint("Horizontal", 68, 3, 70, 3),
    Sketcher.Constraint("Horizontal", 14, 3, 76, 3),
    Sketcher.Constraint("Horizontal", 76, 3, 78, 3),
    Sketcher.Constraint("Horizontal", 6, 3, 4, 2),
    Sketcher.Constraint("Horizontal", 2, 2, 7, 2),
    Sketcher.Constraint("Horizontal", 0, 2, 9, 2),
    Sketcher.Constraint("Horizontal", 78, 3, 12, 2),
    Sketcher.Constraint("Horizontal", 46, 3, 20, 2),
    Sketcher.Constraint("Horizontal", 18, 2, 23, 2),
    Sketcher.Constraint("Horizontal", 16, 2, 25, 2),
    Sketcher.Constraint("Horizontal", 38, 3, 28, 2),
    Sketcher.Constraint("Horizontal", 24, 2, 32, 2),
    Sketcher.Constraint("Horizontal", 31, 2, 33, 2),
    Sketcher.Constraint("Horizontal", 29, 2, 36, 2),
    Sketcher.Constraint("Horizontal", 34, 2, 39, 2),
    Sketcher.Constraint("Horizontal", 32, 2, 41, 2),
    Sketcher.Constraint("Horizontal", 21, 2, 44, 2),
    Sketcher.Constraint("Horizontal", 54, 3, 52, 2),
    Sketcher.Constraint("Horizontal", 50, 2, 55, 2),
    Sketcher.Constraint("Horizontal", 48, 2, 57, 2),
    Sketcher.Constraint("Horizontal", 62, 3, 60, 2),
    Sketcher.Constraint("Horizontal", 70, 3, 68, 2),
    Sketcher.Constraint("Horizontal", 66, 2, 71, 2),
    Sketcher.Constraint("Horizontal", 64, 2, 73, 2),
    Sketcher.Constraint("Horizontal", 13, 2, 76, 2),
    Sketcher.Constraint("Vertical", 6, 3, 12, 3),
    Sketcher.Constraint("Vertical", 4, 3, 14, 3),
    Sketcher.Constraint("Vertical", 14, 3, 20, 3),
    Sketcher.Constraint("Vertical", 12, 3, 22, 3),
    Sketcher.Constraint("Vertical", 22, 3, 28, 3),
    Sketcher.Constraint("Vertical", 20, 3, 30, 3),
    Sketcher.Constraint("Vertical", 38, 3, 44, 3),
    Sketcher.Constraint("Vertical", 36, 3, 46, 3),
    Sketcher.Constraint("Vertical", 30, 3, 52, 3),
    Sketcher.Constraint("Vertical", 28, 3, 54, 3),
    Sketcher.Constraint("Vertical", 54, 3, 60, 3),
    Sketcher.Constraint("Vertical", 52, 3, 62, 3),
    Sketcher.Constraint("Vertical", 70, 3, 76, 3),
    Sketcher.Constraint("Vertical", 68, 3, 78, 3),
    Sketcher.Constraint("Vertical", 62, 3, 2, 2),
    Sketcher.Constraint("Vertical", 60, 3, 6, 2),
    Sketcher.Constraint("Vertical", 7, 2, 10, 2),
    Sketcher.Constraint("Vertical", 3, 2, 14, 2),
    Sketcher.Constraint("Vertical", 15, 2, 18, 2),
    Sketcher.Constraint("Vertical", 11, 2, 22, 2),
    Sketcher.Constraint("Vertical", 9, 2, 24, 2),
    Sketcher.Constraint("Vertical", 23, 2, 26, 2),
    Sketcher.Constraint("Vertical", 19, 2, 30, 2),
    Sketcher.Constraint("Vertical", 46, 3, 34, 2),
    Sketcher.Constraint("Vertical", 44, 3, 38, 2),
    Sketcher.Constraint("Vertical", 39, 2, 42, 2),
    Sketcher.Constraint("Vertical", 35, 2, 46, 2),
    Sketcher.Constraint("Vertical", 31, 2, 50, 2),
    Sketcher.Constraint("Vertical", 27, 2, 54, 2),
    Sketcher.Constraint("Vertical", 25, 2, 56, 2),
    Sketcher.Constraint("Vertical", 55, 2, 58, 2),
    Sketcher.Constraint("Vertical", 51, 2, 62, 2),
    Sketcher.Constraint("Vertical", 33, 2, 64, 2),
    Sketcher.Constraint("Vertical", 78, 3, 66, 2),
    Sketcher.Constraint("Vertical", 76, 3, 70, 2),
    Sketcher.Constraint("Vertical", 71, 2, 74, 2),
    Sketcher.Constraint("Vertical", 67, 2, 78, 2),
    Sketcher.Constraint("Equal", 18, 32),
    Sketcher.Constraint("Equal", 29, 37),
    Sketcher.Constraint("Equal", 26, 40),
    Sketcher.Constraint("Equal", 61, 69),
    Sketcher.Constraint("Equal", 58, 72),
    Sketcher.Constraint("Equal", 7, 11),
    Sketcher.Constraint("Equal", 9, 17),
    Sketcher.Constraint("Equal", 15, 19),
    Sketcher.Constraint("Equal", 23, 27),
    Sketcher.Constraint("Equal", 41, 49),
    Sketcher.Constraint("Equal", 47, 51),
    Sketcher.Constraint("Equal", 55, 59),
    Sketcher.Constraint("Equal", 57, 65),
    Sketcher.Constraint("Equal", 63, 67),
    Sketcher.Constraint("Equal", 71, 75),
    Sketcher.Constraint("DistanceX", 0, 2, 0, 1, 2.0),
    Sketcher.Constraint("DistanceX", 8, 1, 8, 2, 1.0),
    Sketcher.Constraint("DistanceY", 1, 2, 1, 1, 3.0),
    Sketcher.Constraint("Radius", 4, 0.25),
    Sketcher.Constraint("DistanceX", 5, 1, 5, 2, 2.5),
    Sketcher.Constraint("DistanceX", -1, 1, 36, 3, 83.0),
    Sketcher.Constraint("DistanceY", 3, 2, 3, 1, 0.75),
    Sketcher.Constraint("DistanceY", -1, 1, 4, 3, 87.5),
    Sketcher.Constraint("DistanceY", -1, 1, 20, 3, 157.5),
    Sketcher.Constraint("DistanceY", -1, 1, 52, 3, 19.5),
    Sketcher.Constraint("DistanceX", 64, 1, 64, 2, 1.900056),
])
pocket1 = doc.addObject("PartDesign::Pocket", "Pocket")
body.addObject(pocket1)
pocket1.Profile = sketch2
pocket1.Type = "ThroughAll"

doc.recompute()
